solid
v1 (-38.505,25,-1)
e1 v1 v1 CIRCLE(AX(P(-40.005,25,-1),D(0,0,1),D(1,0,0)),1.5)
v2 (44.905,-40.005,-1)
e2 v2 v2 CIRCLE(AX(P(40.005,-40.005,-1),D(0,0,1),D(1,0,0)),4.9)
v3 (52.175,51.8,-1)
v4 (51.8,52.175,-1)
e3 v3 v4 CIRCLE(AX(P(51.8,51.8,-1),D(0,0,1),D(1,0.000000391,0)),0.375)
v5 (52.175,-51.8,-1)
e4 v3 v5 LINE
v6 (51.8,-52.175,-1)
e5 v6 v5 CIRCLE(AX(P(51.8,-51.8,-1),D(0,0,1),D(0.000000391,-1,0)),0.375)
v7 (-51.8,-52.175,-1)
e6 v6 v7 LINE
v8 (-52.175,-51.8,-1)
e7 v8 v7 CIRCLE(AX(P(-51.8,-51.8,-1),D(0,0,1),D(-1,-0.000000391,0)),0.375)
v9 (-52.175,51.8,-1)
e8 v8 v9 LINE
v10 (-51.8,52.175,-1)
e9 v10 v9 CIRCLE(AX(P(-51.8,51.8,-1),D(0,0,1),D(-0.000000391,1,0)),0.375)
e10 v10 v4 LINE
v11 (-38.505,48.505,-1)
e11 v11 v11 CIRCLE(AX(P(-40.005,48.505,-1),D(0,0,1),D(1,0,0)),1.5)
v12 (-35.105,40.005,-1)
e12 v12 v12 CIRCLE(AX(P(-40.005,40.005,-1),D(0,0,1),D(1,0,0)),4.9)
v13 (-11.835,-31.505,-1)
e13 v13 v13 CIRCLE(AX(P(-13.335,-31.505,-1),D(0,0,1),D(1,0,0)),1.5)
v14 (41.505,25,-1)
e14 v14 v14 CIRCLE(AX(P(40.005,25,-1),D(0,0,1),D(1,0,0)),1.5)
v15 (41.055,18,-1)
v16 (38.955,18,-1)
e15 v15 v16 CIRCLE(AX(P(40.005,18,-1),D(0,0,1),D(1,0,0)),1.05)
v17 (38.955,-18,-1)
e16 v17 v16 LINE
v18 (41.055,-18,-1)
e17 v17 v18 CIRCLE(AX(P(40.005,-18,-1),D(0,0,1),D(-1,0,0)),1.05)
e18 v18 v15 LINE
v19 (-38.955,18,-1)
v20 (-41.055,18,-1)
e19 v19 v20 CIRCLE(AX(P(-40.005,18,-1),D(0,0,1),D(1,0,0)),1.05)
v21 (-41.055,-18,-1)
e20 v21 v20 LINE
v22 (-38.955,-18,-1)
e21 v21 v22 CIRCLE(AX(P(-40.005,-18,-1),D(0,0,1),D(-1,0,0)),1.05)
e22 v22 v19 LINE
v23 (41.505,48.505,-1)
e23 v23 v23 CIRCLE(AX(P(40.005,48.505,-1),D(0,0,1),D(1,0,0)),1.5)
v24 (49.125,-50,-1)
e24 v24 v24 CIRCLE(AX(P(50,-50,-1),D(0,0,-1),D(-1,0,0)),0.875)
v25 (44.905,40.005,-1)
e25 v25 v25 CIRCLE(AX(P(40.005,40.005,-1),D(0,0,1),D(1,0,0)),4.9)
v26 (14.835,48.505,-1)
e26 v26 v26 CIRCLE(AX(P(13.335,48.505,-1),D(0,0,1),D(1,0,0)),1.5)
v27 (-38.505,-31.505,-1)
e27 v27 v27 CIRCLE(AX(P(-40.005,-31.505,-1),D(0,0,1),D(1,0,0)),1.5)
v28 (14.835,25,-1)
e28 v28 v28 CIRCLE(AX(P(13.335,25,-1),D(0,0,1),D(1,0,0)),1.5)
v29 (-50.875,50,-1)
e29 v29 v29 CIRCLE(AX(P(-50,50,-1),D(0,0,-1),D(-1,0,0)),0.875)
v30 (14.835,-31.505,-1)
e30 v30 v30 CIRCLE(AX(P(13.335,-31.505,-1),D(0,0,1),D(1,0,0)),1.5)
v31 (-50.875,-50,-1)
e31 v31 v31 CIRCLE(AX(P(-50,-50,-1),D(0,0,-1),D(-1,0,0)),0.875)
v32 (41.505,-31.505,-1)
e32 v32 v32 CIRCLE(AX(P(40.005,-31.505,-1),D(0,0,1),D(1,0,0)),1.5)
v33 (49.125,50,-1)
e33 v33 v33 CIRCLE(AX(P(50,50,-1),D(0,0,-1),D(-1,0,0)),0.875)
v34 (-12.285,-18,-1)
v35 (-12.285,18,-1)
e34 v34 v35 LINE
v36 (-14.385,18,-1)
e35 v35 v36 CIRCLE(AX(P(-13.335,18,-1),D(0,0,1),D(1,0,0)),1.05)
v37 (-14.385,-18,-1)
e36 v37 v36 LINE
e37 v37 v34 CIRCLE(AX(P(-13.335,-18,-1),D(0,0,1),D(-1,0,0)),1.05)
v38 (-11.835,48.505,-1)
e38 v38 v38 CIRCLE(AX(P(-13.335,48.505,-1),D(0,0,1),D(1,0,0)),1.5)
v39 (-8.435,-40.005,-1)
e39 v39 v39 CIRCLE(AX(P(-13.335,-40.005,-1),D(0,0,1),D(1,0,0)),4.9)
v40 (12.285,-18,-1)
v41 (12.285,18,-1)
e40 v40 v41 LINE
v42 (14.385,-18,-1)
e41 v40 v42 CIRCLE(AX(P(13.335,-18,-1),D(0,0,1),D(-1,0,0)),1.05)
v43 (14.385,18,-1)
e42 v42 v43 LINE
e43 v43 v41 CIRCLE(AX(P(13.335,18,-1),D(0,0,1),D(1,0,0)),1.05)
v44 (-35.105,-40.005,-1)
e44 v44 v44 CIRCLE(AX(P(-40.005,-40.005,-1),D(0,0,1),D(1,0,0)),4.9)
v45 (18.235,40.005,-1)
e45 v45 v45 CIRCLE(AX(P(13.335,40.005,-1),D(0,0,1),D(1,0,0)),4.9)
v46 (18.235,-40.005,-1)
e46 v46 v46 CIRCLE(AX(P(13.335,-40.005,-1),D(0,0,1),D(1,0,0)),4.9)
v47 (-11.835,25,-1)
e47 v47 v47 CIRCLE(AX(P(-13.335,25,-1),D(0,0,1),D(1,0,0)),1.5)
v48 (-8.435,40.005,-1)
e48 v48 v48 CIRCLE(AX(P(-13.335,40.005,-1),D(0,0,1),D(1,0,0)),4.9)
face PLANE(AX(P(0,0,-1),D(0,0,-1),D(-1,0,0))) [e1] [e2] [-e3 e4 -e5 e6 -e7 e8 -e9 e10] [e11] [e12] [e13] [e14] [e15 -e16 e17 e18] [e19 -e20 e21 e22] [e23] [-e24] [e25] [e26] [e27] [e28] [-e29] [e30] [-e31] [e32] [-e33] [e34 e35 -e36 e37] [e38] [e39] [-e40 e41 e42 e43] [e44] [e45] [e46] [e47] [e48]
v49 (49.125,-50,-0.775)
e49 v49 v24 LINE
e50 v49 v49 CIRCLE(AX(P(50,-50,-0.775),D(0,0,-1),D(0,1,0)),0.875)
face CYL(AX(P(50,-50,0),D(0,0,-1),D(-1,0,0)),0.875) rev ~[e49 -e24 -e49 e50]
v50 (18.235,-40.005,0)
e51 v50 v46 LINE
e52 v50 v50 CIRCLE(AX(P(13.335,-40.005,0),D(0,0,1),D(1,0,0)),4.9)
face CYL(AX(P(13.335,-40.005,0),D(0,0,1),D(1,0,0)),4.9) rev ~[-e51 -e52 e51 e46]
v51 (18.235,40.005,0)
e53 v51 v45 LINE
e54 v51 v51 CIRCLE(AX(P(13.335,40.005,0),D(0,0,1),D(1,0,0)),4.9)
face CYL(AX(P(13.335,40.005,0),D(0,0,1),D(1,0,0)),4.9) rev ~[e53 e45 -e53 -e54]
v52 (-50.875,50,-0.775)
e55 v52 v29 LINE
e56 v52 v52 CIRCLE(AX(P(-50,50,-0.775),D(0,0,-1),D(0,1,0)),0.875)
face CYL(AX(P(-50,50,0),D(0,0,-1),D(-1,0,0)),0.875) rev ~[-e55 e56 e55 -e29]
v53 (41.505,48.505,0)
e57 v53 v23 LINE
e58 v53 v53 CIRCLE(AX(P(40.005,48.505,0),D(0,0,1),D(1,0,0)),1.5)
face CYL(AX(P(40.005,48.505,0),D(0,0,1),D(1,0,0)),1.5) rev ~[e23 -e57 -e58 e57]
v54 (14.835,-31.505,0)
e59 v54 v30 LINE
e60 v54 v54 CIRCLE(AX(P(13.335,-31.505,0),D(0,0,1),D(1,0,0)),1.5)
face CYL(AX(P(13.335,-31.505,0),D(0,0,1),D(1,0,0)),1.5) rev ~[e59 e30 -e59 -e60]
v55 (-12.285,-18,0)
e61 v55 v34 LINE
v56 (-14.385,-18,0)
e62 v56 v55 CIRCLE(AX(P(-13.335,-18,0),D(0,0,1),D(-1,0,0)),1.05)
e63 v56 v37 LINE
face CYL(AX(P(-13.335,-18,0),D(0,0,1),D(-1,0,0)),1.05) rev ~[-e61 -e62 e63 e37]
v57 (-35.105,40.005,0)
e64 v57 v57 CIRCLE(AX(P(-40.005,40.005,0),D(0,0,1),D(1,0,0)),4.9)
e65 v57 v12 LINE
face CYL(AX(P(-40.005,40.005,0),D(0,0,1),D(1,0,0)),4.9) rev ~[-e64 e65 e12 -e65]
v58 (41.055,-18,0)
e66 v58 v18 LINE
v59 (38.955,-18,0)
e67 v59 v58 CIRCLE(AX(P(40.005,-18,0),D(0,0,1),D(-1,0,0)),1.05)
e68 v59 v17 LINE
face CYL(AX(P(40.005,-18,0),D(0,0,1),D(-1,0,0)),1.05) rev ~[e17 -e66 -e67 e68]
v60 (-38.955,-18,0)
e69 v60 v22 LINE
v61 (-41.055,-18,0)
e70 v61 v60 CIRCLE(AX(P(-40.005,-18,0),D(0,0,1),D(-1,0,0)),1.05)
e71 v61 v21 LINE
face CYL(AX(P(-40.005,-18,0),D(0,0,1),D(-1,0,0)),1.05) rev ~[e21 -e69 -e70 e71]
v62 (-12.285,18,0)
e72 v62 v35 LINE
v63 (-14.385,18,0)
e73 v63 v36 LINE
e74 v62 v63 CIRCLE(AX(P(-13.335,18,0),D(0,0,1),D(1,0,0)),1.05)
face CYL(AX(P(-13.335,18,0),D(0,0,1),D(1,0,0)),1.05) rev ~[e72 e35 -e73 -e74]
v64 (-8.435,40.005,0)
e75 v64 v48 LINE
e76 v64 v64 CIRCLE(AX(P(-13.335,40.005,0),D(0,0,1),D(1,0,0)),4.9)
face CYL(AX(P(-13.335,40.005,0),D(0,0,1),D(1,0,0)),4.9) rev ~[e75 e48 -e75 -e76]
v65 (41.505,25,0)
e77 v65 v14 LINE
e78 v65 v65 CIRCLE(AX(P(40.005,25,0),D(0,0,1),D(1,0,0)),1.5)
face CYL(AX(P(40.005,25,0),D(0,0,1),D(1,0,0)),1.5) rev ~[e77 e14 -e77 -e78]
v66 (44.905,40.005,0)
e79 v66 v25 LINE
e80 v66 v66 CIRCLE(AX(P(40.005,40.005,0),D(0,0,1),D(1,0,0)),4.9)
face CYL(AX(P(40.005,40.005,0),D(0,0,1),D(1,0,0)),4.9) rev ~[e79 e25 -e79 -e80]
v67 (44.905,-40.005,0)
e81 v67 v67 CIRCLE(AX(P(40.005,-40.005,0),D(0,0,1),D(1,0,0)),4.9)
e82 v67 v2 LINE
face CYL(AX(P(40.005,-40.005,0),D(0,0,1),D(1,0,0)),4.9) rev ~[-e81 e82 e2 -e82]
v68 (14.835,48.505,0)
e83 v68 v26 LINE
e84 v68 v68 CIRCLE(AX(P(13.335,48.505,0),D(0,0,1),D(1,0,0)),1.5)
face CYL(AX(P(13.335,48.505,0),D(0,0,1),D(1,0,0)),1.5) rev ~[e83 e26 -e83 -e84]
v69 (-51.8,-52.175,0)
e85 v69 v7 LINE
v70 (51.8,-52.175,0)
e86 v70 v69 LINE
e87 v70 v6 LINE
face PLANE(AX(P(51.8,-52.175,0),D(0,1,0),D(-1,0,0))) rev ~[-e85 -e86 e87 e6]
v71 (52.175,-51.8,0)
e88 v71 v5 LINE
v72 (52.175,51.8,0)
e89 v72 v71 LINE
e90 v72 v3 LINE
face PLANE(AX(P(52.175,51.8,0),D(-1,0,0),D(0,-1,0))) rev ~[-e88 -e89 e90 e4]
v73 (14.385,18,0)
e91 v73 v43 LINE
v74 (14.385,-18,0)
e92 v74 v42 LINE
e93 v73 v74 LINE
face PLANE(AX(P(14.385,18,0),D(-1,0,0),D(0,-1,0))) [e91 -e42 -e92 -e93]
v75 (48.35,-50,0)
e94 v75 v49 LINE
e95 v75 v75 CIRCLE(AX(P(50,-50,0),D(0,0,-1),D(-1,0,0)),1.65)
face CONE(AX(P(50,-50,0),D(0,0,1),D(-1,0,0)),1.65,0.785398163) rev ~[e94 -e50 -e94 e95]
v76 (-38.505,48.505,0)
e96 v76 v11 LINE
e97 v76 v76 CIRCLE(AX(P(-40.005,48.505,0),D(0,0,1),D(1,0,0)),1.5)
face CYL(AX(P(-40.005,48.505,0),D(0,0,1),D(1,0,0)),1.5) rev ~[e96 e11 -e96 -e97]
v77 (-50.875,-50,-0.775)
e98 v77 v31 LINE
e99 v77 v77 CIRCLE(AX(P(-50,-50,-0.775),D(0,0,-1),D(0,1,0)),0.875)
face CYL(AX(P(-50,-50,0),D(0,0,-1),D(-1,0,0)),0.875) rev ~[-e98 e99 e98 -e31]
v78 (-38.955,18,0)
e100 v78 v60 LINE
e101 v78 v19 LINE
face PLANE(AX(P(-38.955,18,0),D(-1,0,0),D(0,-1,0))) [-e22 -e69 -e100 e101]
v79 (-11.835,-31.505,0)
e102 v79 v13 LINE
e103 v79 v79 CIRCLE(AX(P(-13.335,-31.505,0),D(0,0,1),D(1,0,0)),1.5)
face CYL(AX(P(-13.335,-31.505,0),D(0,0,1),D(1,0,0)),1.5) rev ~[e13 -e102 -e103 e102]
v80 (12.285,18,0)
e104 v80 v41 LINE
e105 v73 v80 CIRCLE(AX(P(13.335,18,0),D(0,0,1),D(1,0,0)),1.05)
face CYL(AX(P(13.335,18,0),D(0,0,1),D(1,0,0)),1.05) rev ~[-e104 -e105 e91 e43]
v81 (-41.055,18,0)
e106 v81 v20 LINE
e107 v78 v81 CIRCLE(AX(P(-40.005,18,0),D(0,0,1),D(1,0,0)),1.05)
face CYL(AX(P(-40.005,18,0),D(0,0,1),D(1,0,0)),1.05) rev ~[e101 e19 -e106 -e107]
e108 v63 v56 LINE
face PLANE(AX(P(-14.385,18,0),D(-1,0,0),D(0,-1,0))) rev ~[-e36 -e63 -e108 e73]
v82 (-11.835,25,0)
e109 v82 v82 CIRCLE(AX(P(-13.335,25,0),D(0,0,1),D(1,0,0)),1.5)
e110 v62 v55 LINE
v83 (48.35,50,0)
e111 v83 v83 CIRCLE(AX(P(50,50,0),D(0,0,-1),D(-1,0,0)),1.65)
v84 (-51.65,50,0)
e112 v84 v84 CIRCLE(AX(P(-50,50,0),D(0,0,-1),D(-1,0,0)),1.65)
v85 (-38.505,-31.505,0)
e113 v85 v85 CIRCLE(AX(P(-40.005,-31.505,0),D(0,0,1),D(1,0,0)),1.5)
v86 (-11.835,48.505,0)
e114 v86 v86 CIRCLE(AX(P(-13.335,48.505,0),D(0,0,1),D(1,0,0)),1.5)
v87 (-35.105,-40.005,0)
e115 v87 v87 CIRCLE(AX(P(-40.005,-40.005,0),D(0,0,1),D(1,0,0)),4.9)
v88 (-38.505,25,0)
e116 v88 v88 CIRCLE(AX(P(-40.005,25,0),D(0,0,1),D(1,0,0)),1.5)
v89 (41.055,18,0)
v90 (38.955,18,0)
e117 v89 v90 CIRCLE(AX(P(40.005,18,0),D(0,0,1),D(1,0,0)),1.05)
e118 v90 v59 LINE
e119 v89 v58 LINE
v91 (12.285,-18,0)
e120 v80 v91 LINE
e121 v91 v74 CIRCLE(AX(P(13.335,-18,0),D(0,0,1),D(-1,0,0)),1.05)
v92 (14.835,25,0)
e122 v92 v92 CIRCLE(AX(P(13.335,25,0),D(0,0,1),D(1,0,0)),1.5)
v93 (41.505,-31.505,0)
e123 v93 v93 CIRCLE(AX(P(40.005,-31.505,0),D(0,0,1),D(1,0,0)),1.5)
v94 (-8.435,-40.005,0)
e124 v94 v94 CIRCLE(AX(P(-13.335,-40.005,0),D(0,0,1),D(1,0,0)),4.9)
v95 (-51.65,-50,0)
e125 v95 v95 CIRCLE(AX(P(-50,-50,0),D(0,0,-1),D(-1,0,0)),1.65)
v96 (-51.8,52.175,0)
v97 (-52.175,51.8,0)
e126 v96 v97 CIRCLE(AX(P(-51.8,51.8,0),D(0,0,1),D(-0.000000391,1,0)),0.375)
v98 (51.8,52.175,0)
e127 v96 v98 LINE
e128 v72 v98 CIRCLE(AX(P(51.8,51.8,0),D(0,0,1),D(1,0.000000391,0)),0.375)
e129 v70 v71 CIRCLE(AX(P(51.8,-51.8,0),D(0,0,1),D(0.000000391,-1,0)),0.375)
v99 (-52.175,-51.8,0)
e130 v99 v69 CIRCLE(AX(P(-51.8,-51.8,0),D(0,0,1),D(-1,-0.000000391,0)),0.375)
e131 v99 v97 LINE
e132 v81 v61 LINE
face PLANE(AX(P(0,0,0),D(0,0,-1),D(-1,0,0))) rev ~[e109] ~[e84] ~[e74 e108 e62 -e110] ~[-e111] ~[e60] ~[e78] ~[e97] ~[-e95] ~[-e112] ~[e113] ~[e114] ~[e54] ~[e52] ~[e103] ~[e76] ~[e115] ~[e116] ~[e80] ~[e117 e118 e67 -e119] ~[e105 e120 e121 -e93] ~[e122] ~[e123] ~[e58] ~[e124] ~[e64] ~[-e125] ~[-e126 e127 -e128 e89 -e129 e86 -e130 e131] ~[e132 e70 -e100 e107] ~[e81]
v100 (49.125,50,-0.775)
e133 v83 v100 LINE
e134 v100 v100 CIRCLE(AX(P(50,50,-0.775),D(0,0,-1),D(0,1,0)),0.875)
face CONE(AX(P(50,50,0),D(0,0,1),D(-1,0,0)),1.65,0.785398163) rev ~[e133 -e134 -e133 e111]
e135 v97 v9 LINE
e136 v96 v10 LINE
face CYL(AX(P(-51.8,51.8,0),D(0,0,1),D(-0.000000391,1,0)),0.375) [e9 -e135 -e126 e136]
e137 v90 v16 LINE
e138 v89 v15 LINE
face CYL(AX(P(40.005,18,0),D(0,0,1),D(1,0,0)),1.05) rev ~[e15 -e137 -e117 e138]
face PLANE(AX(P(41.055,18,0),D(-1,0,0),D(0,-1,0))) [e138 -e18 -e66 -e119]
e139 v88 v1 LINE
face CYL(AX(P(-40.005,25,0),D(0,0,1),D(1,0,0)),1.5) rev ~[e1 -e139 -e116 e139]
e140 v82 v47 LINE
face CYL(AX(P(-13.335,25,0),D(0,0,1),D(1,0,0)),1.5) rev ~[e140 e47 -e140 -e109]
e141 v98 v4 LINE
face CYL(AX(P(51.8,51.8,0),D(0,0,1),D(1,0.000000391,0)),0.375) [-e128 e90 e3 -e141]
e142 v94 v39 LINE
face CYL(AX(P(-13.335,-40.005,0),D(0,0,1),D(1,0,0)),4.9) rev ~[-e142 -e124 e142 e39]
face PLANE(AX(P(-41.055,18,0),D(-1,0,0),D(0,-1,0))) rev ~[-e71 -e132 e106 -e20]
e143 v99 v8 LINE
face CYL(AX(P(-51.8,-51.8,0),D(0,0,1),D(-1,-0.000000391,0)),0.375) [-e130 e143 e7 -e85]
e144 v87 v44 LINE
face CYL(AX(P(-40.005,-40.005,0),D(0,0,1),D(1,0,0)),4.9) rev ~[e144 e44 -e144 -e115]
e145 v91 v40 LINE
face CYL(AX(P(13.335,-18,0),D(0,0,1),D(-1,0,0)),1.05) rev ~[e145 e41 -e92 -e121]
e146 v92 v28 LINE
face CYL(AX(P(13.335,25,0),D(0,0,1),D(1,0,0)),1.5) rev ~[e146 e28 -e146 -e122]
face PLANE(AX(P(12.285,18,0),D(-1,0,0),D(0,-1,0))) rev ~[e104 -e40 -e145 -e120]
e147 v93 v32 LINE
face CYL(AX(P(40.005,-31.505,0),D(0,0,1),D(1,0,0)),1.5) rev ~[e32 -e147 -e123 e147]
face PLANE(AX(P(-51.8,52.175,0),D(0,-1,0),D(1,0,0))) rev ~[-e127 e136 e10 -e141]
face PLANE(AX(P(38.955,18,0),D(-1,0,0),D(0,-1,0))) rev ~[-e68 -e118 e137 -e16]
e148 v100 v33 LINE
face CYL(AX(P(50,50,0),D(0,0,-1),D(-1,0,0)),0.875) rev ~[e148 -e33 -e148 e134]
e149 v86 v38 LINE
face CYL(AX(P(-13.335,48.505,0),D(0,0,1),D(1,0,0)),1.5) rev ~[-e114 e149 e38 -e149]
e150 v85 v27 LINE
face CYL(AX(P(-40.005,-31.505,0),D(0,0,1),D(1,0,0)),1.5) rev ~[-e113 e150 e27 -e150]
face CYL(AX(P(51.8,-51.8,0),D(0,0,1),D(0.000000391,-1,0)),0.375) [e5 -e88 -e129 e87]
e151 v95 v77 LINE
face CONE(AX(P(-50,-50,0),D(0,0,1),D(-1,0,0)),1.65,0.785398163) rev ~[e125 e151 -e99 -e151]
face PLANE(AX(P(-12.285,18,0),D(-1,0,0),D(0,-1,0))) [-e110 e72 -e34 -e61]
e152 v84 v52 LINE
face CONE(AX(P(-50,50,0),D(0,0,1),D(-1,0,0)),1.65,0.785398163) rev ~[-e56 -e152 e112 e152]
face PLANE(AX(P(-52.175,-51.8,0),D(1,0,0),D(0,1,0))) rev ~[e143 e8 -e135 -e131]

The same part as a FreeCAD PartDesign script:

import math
import FreeCAD as App
import Part
import Sketcher

V = App.Vector
Q = App.Units.Quantity

doc = App.newDocument("Part")
params = doc.addObject("Spreadsheet::Sheet", "Params")
for row, (alias, value) in enumerate([
    ("sketch1_width", "103.6 mm"),
    ("pad1_length", "1 mm"),
    ("sketch2_radius", "0.500001 mm"),
    ("sketch2_width", "90 mm"),
    ("sketch3_diameter", "1.75 mm"),
    ("hole_diameter", "1.75 mm"),
    ("hole_csink_diameter", "3.3 mm"),
    ("sketch4_diameter", "9.8 mm"),
    ("sketch5_diameter", "3 mm"),
    ("sketch6_diameter", "9.8 mm"),
    ("sketch7_diameter", "3 mm"),
    ("sketch8_height", "36 mm"),
    ("sketch8_radius", "1.05 mm"),
    ("sketch9_diameter", "3 mm"),
], start=1):
    params.set(f"A{row}", alias)
    params.set(f"B{row}", "=" + value)
    params.setAlias(f"B{row}", alias)

body = doc.addObject("PartDesign::Body", "Body")

# Sketch on XY plane
sketch1 = body.newObject("Sketcher::SketchObject", "Sketch")
sketch1.AttachmentSupport = (doc.getObject("XY_Plane"), [""])
sketch1.MapMode = "FlatFace"
sketch1.addGeometry([
    Part.LineSegment(V(51.8, 52.17, 0), V(-51.8, 52.17, 0)),  # 0
    Part.ArcOfCircle(Part.Circle(V(-51.8, 51.8, 0), V(0, 0, 1), 0.38), math.radians(90), math.radians(180)),  # 1
    Part.LineSegment(V(-52.17, 51.8, 0), V(-52.17, -51.8, 0)),  # 2
    Part.ArcOfCircle(Part.Circle(V(-51.8, -51.8, 0), V(0, 0, 1), 0.38), math.radians(-180), math.radians(-90)),  # 3
    Part.LineSegment(V(-51.8, -52.17, 0), V(51.8, -52.17, 0)),  # 4
    Part.ArcOfCircle(Part.Circle(V(51.8, -51.8, 0), V(0, 0, 1), 0.38), math.radians(-90), math.radians(0)),  # 5
    Part.LineSegment(V(52.17, -51.8, 0), V(52.17, 51.8, 0)),  # 6
    Part.ArcOfCircle(Part.Circle(V(51.8, 51.8, 0), V(0, 0, 1), 0.38), math.radians(0), math.radians(90)),  # 7
], False)
sketch1.addConstraint([
    Sketcher.Constraint("Tangent", 0, 2, 1, 1),
    Sketcher.Constraint("Tangent", 1, 2, 2, 1),
    Sketcher.Constraint("Tangent", 2, 2, 3, 1),
    Sketcher.Constraint("Tangent", 3, 2, 4, 1),
    Sketcher.Constraint("Tangent", 4, 2, 5, 1),
    Sketcher.Constraint("Tangent", 5, 2, 6, 1),
    Sketcher.Constraint("Tangent", 6, 2, 7, 1),
    Sketcher.Constraint("Tangent", 7, 2, 0, 1),
    Sketcher.Constraint("Horizontal", 0),
    Sketcher.Constraint("Vertical", 2),
    Sketcher.Constraint("Horizontal", 4),
    Sketcher.Constraint("Vertical", 6),
    Sketcher.Constraint("Equal", 1, 3),
    Sketcher.Constraint("Equal", 3, 5),
    Sketcher.Constraint("Equal", 5, 7),
    Sketcher.Constraint("Symmetric", 1, 3, 5, 3, -1, 1),
    Sketcher.Constraint("Equal", 4, 2),
    Sketcher.Constraint("DistanceX", 0, 2, 0, 1, Q("103.6 mm")),
    Sketcher.Constraint("Radius", 1, Q("0.375 mm")),
])
sketch1.setExpression("Constraints[17]", "Params.sketch1_width")
pad1 = body.newObject("PartDesign::Pad", "Pad")
pad1.Profile = sketch1
pad1.setExpression("Length", "Params.pad1_length")
pad1.Reversed = True

# Sketch on XY plane
sketch2 = body.newObject("Sketcher::SketchObject", "Sketch001")
sketch2.AttachmentSupport = (doc.getObject("XY_Plane"), [""])
sketch2.MapMode = "FlatFace"
sketch2.AttachmentOffset = App.Placement(V(0, 0, -4.8), App.Rotation())
sketch2.addGeometry([
    Part.LineSegment(V(-45, 50.2, 0), V(45, 50.2, 0)),  # 0
    Part.ArcOfCircle(Part.Circle(V(45, 50.7, 0), V(0, 0, 1), 0.5), math.radians(-90), math.radians(0)),  # 1
    Part.ArcOfCircle(Part.Circle(V(45, 50.7, 0), V(0, 0, 1), 0.5), math.radians(0), math.radians(90)),  # 2
    Part.LineSegment(V(45, 51.2, 0), V(-45, 51.2, 0)),  # 3
    Part.ArcOfCircle(Part.Circle(V(-45, 50.7, 0), V(0, 0, 1), 0.5), math.radians(90), math.radians(180)),  # 4
    Part.ArcOfCircle(Part.Circle(V(-45, 50.7, 0), V(0, 0, 1), 0.5), math.radians(-180), math.radians(-90)),  # 5
    Part.LineSegment(V(-45, -51.2, 0), V(45, -51.2, 0)),  # 6
    Part.ArcOfCircle(Part.Circle(V(45, -50.7, 0), V(0, 0, 1), 0.5), math.radians(-90), math.radians(0)),  # 7
    Part.ArcOfCircle(Part.Circle(V(45, -50.7, 0), V(0, 0, 1), 0.5), math.radians(0), math.radians(90)),  # 8
    Part.LineSegment(V(45, -50.2, 0), V(-45, -50.2, 0)),  # 9
    Part.ArcOfCircle(Part.Circle(V(-45, -50.7, 0), V(0, 0, 1), 0.5), math.radians(90), math.radians(180)),  # 10
    Part.ArcOfCircle(Part.Circle(V(-45, -50.7, 0), V(0, 0, 1), 0.5), math.radians(-180), math.radians(-90)),  # 11
    Part.LineSegment(V(51.2, -45, 0), V(51.2, 45, 0)),  # 12
    Part.ArcOfCircle(Part.Circle(V(50.7, 45, 0), V(0, 0, 1), 0.5), math.radians(0), math.radians(90)),  # 13
    Part.ArcOfCircle(Part.Circle(V(50.7, 45, 0), V(0, 0, 1), 0.5), math.radians(90), math.radians(180)),  # 14
    Part.LineSegment(V(50.2, 45, 0), V(50.2, -45, 0)),  # 15
    Part.ArcOfCircle(Part.Circle(V(50.7, -45, 0), V(0, 0, 1), 0.5), math.radians(-180), math.radians(-90)),  # 16
    Part.ArcOfCircle(Part.Circle(V(50.7, -45, 0), V(0, 0, 1), 0.5), math.radians(-90), math.radians(0)),  # 17
    Part.LineSegment(V(-50.2, -45, 0), V(-50.2, 45, 0)),  # 18
    Part.ArcOfCircle(Part.Circle(V(-50.7, 45, 0), V(0, 0, 1), 0.5), math.radians(0), math.radians(90)),  # 19
    Part.ArcOfCircle(Part.Circle(V(-50.7, 45, 0), V(0, 0, 1), 0.5), math.radians(90), math.radians(180)),  # 20
    Part.LineSegment(V(-51.2, 45, 0), V(-51.2, -45, 0)),  # 21
    Part.ArcOfCircle(Part.Circle(V(-50.7, -45, 0), V(0, 0, 1), 0.5), math.radians(-180), math.radians(-90)),  # 22
    Part.ArcOfCircle(Part.Circle(V(-50.7, -45, 0), V(0, 0, 1), 0.5), math.radians(-90), math.radians(0)),  # 23
], False)
sketch2.addConstraint([
    Sketcher.Constraint("Coincident", 0, 2, 1, 1),
    Sketcher.Constraint("Coincident", 1, 2, 2, 1),
    Sketcher.Constraint("Coincident", 2, 2, 3, 1),
    Sketcher.Constraint("Coincident", 3, 2, 4, 1),
    Sketcher.Constraint("Coincident", 4, 2, 5, 1),
    Sketcher.Constraint("Coincident", 5, 2, 0, 1),
    Sketcher.Constraint("Coincident", 6, 2, 7, 1),
    Sketcher.Constraint("Coincident", 7, 2, 8, 1),
    Sketcher.Constraint("Coincident", 8, 2, 9, 1),
    Sketcher.Constraint("Coincident", 9, 2, 10, 1),
    Sketcher.Constraint("Coincident", 10, 2, 11, 1),
    Sketcher.Constraint("Coincident", 11, 2, 6, 1),
    Sketcher.Constraint("Coincident", 12, 2, 13, 1),
    Sketcher.Constraint("Coincident", 13, 2, 14, 1),
    Sketcher.Constraint("Coincident", 14, 2, 15, 1),
    Sketcher.Constraint("Coincident", 15, 2, 16, 1),
    Sketcher.Constraint("Coincident", 16, 2, 17, 1),
    Sketcher.Constraint("Coincident", 17, 2, 12, 1),
    Sketcher.Constraint("Coincident", 18, 2, 19, 1),
    Sketcher.Constraint("Coincident", 19, 2, 20, 1),
    Sketcher.Constraint("Coincident", 20, 2, 21, 1),
    Sketcher.Constraint("Coincident", 21, 2, 22, 1),
    Sketcher.Constraint("Coincident", 22, 2, 23, 1),
    Sketcher.Constraint("Coincident", 23, 2, 18, 1),
    Sketcher.Constraint("Horizontal", 0),
    Sketcher.Constraint("Horizontal", 3),
    Sketcher.Constraint("Horizontal", 6),
    Sketcher.Constraint("Horizontal", 9),
    Sketcher.Constraint("Vertical", 12),
    Sketcher.Constraint("Vertical", 15),
    Sketcher.Constraint("Vertical", 18),
    Sketcher.Constraint("Vertical", 21),
    Sketcher.Constraint("Coincident", 2, 3, 1, 3),
    Sketcher.Constraint("Coincident", 5, 3, 4, 3),
    Sketcher.Constraint("Coincident", 8, 3, 7, 3),
    Sketcher.Constraint("Coincident", 11, 3, 10, 3),
    Sketcher.Constraint("Coincident", 14, 3, 13, 3),
    Sketcher.Constraint("Coincident", 17, 3, 16, 3),
    Sketcher.Constraint("Coincident", 20, 3, 19, 3),
    Sketcher.Constraint("Coincident", 23, 3, 22, 3),
    Sketcher.Constraint("Equal", 5, 7),
    Sketcher.Constraint("Equal", 11, 13),
    Sketcher.Constraint("Equal", 17, 19),
    Sketcher.Constraint("Symmetric", 4, 3, 7, 3, -1, 1),
    Sketcher.Constraint("Symmetric", 16, 3, 19, 3, -1, 1),
    Sketcher.Constraint("Symmetric", 1, 2, 10, 2, -1, 1),
    Sketcher.Constraint("Symmetric", 13, 2, 22, 2, -1, 1),
    Sketcher.Constraint("Symmetric", 1, 2, 4, 2, -2),
    Sketcher.Constraint("Symmetric", 13, 2, 19, 2, -2),
    Sketcher.Constraint("Horizontal", 5, 3, 1, 2),
    Sketcher.Constraint("Horizontal", 11, 3, 7, 2),
    Sketcher.Constraint("Horizontal", 20, 3, 12, 2),
    Sketcher.Constraint("Horizontal", 12, 2, 14, 2),
    Sketcher.Constraint("Horizontal", 23, 3, 15, 2),
    Sketcher.Constraint("Horizontal", 15, 2, 17, 2),
    Sketcher.Constraint("Horizontal", 14, 2, 18, 2),
    Sketcher.Constraint("Horizontal", 18, 2, 20, 2),
    Sketcher.Constraint("Horizontal", 17, 2, 21, 2),
    Sketcher.Constraint("Horizontal", 21, 2, 23, 2),
    Sketcher.Constraint("Vertical", 8, 3, 0, 2),
    Sketcher.Constraint("Vertical", 0, 2, 2, 2),
    Sketcher.Constraint("Vertical", 11, 3, 3, 2),
    Sketcher.Constraint("Vertical", 3, 2, 5, 2),
    Sketcher.Constraint("Vertical", 2, 2, 6, 2),
    Sketcher.Constraint("Vertical", 6, 2, 8, 2),
    Sketcher.Constraint("Vertical", 5, 2, 9, 2),
    Sketcher.Constraint("Vertical", 9, 2, 11, 2),
    Sketcher.Constraint("Vertical", 17, 3, 13, 2),
    Sketcher.Constraint("Vertical", 13, 2, 16, 2),
    Sketcher.Constraint("Equal", 9, 12),
    Sketcher.Constraint("Radius", 1, Q("0.500001 mm")),
    Sketcher.Constraint("DistanceX", 0, 1, 0, 2, Q("90 mm")),
    Sketcher.Constraint("DistanceY", 7, 3, 1, 3, Q("101.35 mm")),
    Sketcher.Constraint("DistanceX", -1, 1, 13, 3, Q("50.674999 mm")),
])
sketch2.setExpression("Constraints[70]", "Params.sketch2_radius")
sketch2.setExpression("Constraints[71]", "Params.sketch2_width")
pocket1 = body.newObject("PartDesign::Pocket", "Pocket")
pocket1.Profile = sketch2
pocket1.Type = "ThroughAll"

# Sketch on XY plane
sketch3 = body.newObject("Sketcher::SketchObject", "Sketch002")
sketch3.AttachmentSupport = (doc.getObject("XY_Plane"), [""])
sketch3.MapMode = "FlatFace"
sketch3.addGeometry([
    Part.Circle(V(-50, 50, 0), V(0, 0, 1), 0.9),
    Part.Circle(V(50, 50, 0), V(0, 0, 1), 0.9),
    Part.Circle(V(50, -50, 0), V(0, 0, 1), 0.9),
    Part.Circle(V(-50, -50, 0), V(0, 0, 1), 0.9),
], False)
sketch3.addConstraint([
    Sketcher.Constraint("Equal", 0, 1),
    Sketcher.Constraint("Equal", 1, 2),
    Sketcher.Constraint("Equal", 2, 3),
    Sketcher.Constraint("Symmetric", 0, 3, 2, 3, -1, 1),
    Sketcher.Constraint("Symmetric", 1, 3, 3, 3, -1, 1),
    Sketcher.Constraint("Symmetric", 0, 3, 1, 3, -2),
    Sketcher.Constraint("Diameter", 0, Q("1.75 mm")),
    Sketcher.Constraint("DistanceX", 0, 3, -1, 1, Q("50 mm")),
    Sketcher.Constraint("DistanceY", -1, 1, 0, 3, Q("50 mm")),
])
sketch3.setExpression("Constraints[6]", "Params.sketch3_diameter")
doc.recompute()
hole = body.newObject("PartDesign::Hole", "Hole")
hole.Profile = sketch3
hole.ThreadType = "None"
hole.setExpression("Diameter", "Params.hole_diameter")
hole.DepthType = "ThroughAll"
hole.HoleCutType = "Countersink"
hole.setExpression("HoleCutDiameter", "Params.hole_csink_diameter")
hole.HoleCutCountersinkAngle = 90

# Sketch on XY plane
sketch4 = body.newObject("Sketcher::SketchObject", "Sketch003")
sketch4.AttachmentSupport = (doc.getObject("XY_Plane"), [""])
sketch4.MapMode = "FlatFace"
sketch4.addGeometry([
    Part.Circle(V(-40, -40, 0), V(0, 0, 1), 4.9),
    Part.Circle(V(-13.3, -40, 0), V(0, 0, 1), 4.9),
    Part.Circle(V(13.3, -40, 0), V(0, 0, 1), 4.9),
    Part.Circle(V(40, -40, 0), V(0, 0, 1), 4.9),
], False)
sketch4.addConstraint([
    Sketcher.Constraint("Equal", 0, 1),
    Sketcher.Constraint("Equal", 1, 2),
    Sketcher.Constraint("Equal", 2, 3),
    Sketcher.Constraint("Symmetric", 1, 3, 2, 3, -2),
    Sketcher.Constraint("Symmetric", 0, 3, 3, 3, -2),
    Sketcher.Constraint("Horizontal", 0, 3, 1, 3),
    Sketcher.Constraint("Diameter", 0, Q("9.8 mm")),
    Sketcher.Constraint("DistanceX", 0, 3, 1, 3, Q("26.67 mm")),
    Sketcher.Constraint("DistanceX", 1, 3, 2, 3, Q("26.67 mm")),
    Sketcher.Constraint("DistanceY", 0, 3, -1, 1, Q("40.005 mm")),
])
sketch4.setExpression("Constraints[6]", "Params.sketch4_diameter")
pocket2 = body.newObject("PartDesign::Pocket", "Pocket001")
pocket2.Profile = sketch4
pocket2.Type = "ThroughAll"

# Sketch on XY plane
sketch5 = body.newObject("Sketcher::SketchObject", "Sketch004")
sketch5.AttachmentSupport = (doc.getObject("XY_Plane"), [""])
sketch5.MapMode = "FlatFace"
sketch5.addGeometry([
    Part.Circle(V(-40, -31.5, 0), V(0, 0, 1), 1.5),
    Part.Circle(V(-13.3, -31.5, 0), V(0, 0, 1), 1.5),
    Part.Circle(V(13.3, -31.5, 0), V(0, 0, 1), 1.5),
    Part.Circle(V(40, -31.5, 0), V(0, 0, 1), 1.5),
], False)
sketch5.addConstraint([
    Sketcher.Constraint("Equal", 0, 1),
    Sketcher.Constraint("Equal", 1, 2),
    Sketcher.Constraint("Equal", 2, 3),
    Sketcher.Constraint("Symmetric", 1, 3, 2, 3, -2),
    Sketcher.Constraint("Symmetric", 0, 3, 3, 3, -2),
    Sketcher.Constraint("Horizontal", 0, 3, 1, 3),
    Sketcher.Constraint("Diameter", 0, Q("3 mm")),
    Sketcher.Constraint("DistanceX", 0, 3, 1, 3, Q("26.67 mm")),
    Sketcher.Constraint("DistanceX", 1, 3, 2, 3, Q("26.67 mm")),
    Sketcher.Constraint("DistanceY", 0, 3, -1, 1, Q("31.505 mm")),
])
sketch5.setExpression("Constraints[6]", "Params.sketch5_diameter")
pocket3 = body.newObject("PartDesign::Pocket", "Pocket002")
pocket3.Profile = sketch5
pocket3.Type = "ThroughAll"

# Sketch on XY plane
sketch6 = body.newObject("Sketcher::SketchObject", "Sketch005")
sketch6.AttachmentSupport = (doc.getObject("XY_Plane"), [""])
sketch6.MapMode = "FlatFace"
sketch6.addGeometry([
    Part.Circle(V(-40, 40, 0), V(0, 0, 1), 4.9),
    Part.Circle(V(-13.3, 40, 0), V(0, 0, 1), 4.9),
    Part.Circle(V(13.3, 40, 0), V(0, 0, 1), 4.9),
    Part.Circle(V(40, 40, 0), V(0, 0, 1), 4.9),
], False)
sketch6.addConstraint([
    Sketcher.Constraint("Equal", 0, 1),
    Sketcher.Constraint("Equal", 1, 2),
    Sketcher.Constraint("Equal", 2, 3),
    Sketcher.Constraint("Symmetric", 1, 3, 2, 3, -2),
    Sketcher.Constraint("Symmetric", 0, 3, 3, 3, -2),
    Sketcher.Constraint("Horizontal", 0, 3, 1, 3),
    Sketcher.Constraint("Diameter", 0, Q("9.8 mm")),
    Sketcher.Constraint("DistanceX", 0, 3, 1, 3, Q("26.67 mm")),
    Sketcher.Constraint("DistanceX", 1, 3, 2, 3, Q("26.67 mm")),
    Sketcher.Constraint("DistanceY", -1, 1, 0, 3, Q("40.005 mm")),
])
sketch6.setExpression("Constraints[6]", "Params.sketch6_diameter")
pocket4 = body.newObject("PartDesign::Pocket", "Pocket003")
pocket4.Profile = sketch6
pocket4.Type = "ThroughAll"

# Sketch on XY plane
sketch7 = body.newObject("Sketcher::SketchObject", "Sketch006")
sketch7.AttachmentSupport = (doc.getObject("XY_Plane"), [""])
sketch7.MapMode = "FlatFace"
sketch7.addGeometry([
    Part.Circle(V(-40, 48.5, 0), V(0, 0, 1), 1.5),
    Part.Circle(V(-13.3, 48.5, 0), V(0, 0, 1), 1.5),
    Part.Circle(V(13.3, 48.5, 0), V(0, 0, 1), 1.5),
    Part.Circle(V(40, 48.5, 0), V(0, 0, 1), 1.5),
], False)
sketch7.addConstraint([
    Sketcher.Constraint("Equal", 0, 1),
    Sketcher.Constraint("Equal", 1, 2),
    Sketcher.Constraint("Equal", 2, 3),
    Sketcher.Constraint("Symmetric", 1, 3, 2, 3, -2),
    Sketcher.Constraint("Symmetric", 0, 3, 3, 3, -2),
    Sketcher.Constraint("Horizontal", 0, 3, 1, 3),
    Sketcher.Constraint("Diameter", 0, Q("3 mm")),
    Sketcher.Constraint("DistanceX", 0, 3, 1, 3, Q("26.67 mm")),
    Sketcher.Constraint("DistanceX", 1, 3, 2, 3, Q("26.67 mm")),
    Sketcher.Constraint("DistanceY", -1, 1, 0, 3, Q("48.505 mm")),
])
sketch7.setExpression("Constraints[6]", "Params.sketch7_diameter")
pocket5 = body.newObject("PartDesign::Pocket", "Pocket004")
pocket5.Profile = sketch7
pocket5.Type = "ThroughAll"

# Sketch on XY plane
sketch8 = body.newObject("Sketcher::SketchObject", "Sketch007")
sketch8.AttachmentSupport = (doc.getObject("XY_Plane"), [""])
sketch8.MapMode = "FlatFace"
sketch8.addGeometry([
    Part.ArcOfCircle(Part.Circle(V(-40, 18, 0), V(0, 0, 1), 1.1), math.radians(0), math.radians(180)),  # 0
    Part.LineSegment(V(-41.1, 18, 0), V(-41.1, -18, 0)),  # 1
    Part.ArcOfCircle(Part.Circle(V(-40, -18, 0), V(0, 0, 1), 1.1), math.radians(180), math.radians(360)),  # 2
    Part.LineSegment(V(-39, -18, 0), V(-39, 18, 0)),  # 3
    Part.ArcOfCircle(Part.Circle(V(-13.3, 18, 0), V(0, 0, 1), 1.1), math.radians(0), math.radians(180)),  # 4
    Part.LineSegment(V(-14.4, 18, 0), V(-14.4, -18, 0)),  # 5
    Part.ArcOfCircle(Part.Circle(V(-13.3, -18, 0), V(0, 0, 1), 1.1), math.radians(180), math.radians(360)),  # 6
    Part.LineSegment(V(-12.3, -18, 0), V(-12.3, 18, 0)),  # 7
    Part.ArcOfCircle(Part.Circle(V(13.3, 18, 0), V(0, 0, 1), 1.1), math.radians(0), math.radians(180)),  # 8
    Part.LineSegment(V(12.3, 18, 0), V(12.3, -18, 0)),  # 9
    Part.ArcOfCircle(Part.Circle(V(13.3, -18, 0), V(0, 0, 1), 1.1), math.radians(180), math.radians(360)),  # 10
    Part.LineSegment(V(14.4, -18, 0), V(14.4, 18, 0)),  # 11
    Part.ArcOfCircle(Part.Circle(V(40, 18, 0), V(0, 0, 1), 1.1), math.radians(0), math.radians(180)),  # 12
    Part.LineSegment(V(39, 18, 0), V(39, -18, 0)),  # 13
    Part.ArcOfCircle(Part.Circle(V(40, -18, 0), V(0, 0, 1), 1.1), math.radians(180), math.radians(360)),  # 14
    Part.LineSegment(V(41.1, -18, 0), V(41.1, 18, 0)),  # 15
], False)
sketch8.addConstraint([
    Sketcher.Constraint("Tangent", 0, 2, 1, 1),
    Sketcher.Constraint("Tangent", 1, 2, 2, 1),
    Sketcher.Constraint("Tangent", 2, 2, 3, 1),
    Sketcher.Constraint("Tangent", 3, 2, 0, 1),
    Sketcher.Constraint("Tangent", 4, 2, 5, 1),
    Sketcher.Constraint("Tangent", 5, 2, 6, 1),
    Sketcher.Constraint("Tangent", 6, 2, 7, 1),
    Sketcher.Constraint("Tangent", 7, 2, 4, 1),
    Sketcher.Constraint("Tangent", 8, 2, 9, 1),
    Sketcher.Constraint("Tangent", 9, 2, 10, 1),
    Sketcher.Constraint("Tangent", 10, 2, 11, 1),
    Sketcher.Constraint("Tangent", 11, 2, 8, 1),
    Sketcher.Constraint("Tangent", 12, 2, 13, 1),
    Sketcher.Constraint("Tangent", 13, 2, 14, 1),
    Sketcher.Constraint("Tangent", 14, 2, 15, 1),
    Sketcher.Constraint("Tangent", 15, 2, 12, 1),
    Sketcher.Constraint("Vertical", 1),
    Sketcher.Constraint("Vertical", 3),
    Sketcher.Constraint("Vertical", 5),
    Sketcher.Constraint("Vertical", 7),
    Sketcher.Constraint("Vertical", 9),
    Sketcher.Constraint("Vertical", 11),
    Sketcher.Constraint("Vertical", 13),
    Sketcher.Constraint("Vertical", 15),
    Sketcher.Constraint("Equal", 2, 4),
    Sketcher.Constraint("Equal", 6, 8),
    Sketcher.Constraint("Equal", 10, 12),
    Sketcher.Constraint("Symmetric", 6, 3, 8, 3, -1, 1),
    Sketcher.Constraint("Symmetric", 2, 3, 12, 3, -1, 1),
    Sketcher.Constraint("Horizontal", 0, 3, 4, 3),
    Sketcher.Constraint("Horizontal", 2, 3, 6, 3),
    Sketcher.Constraint("Horizontal", 4, 3, 8, 3),
    Sketcher.Constraint("Horizontal", 6, 3, 10, 3),
    Sketcher.Constraint("Horizontal", 10, 3, 14, 3),
    Sketcher.Constraint("DistanceY", 1, 2, 1, 1, Q("36 mm")),
    Sketcher.Constraint("Radius", 0, Q("1.05 mm")),
    Sketcher.Constraint("DistanceX", 0, 3, 4, 3, Q("26.67 mm")),
    Sketcher.Constraint("DistanceX", 4, 3, 8, 3, Q("26.67 mm")),
])
sketch8.setExpression("Constraints[34]", "Params.sketch8_height")
sketch8.setExpression("Constraints[35]", "Params.sketch8_radius")
pocket6 = body.newObject("PartDesign::Pocket", "Pocket005")
pocket6.Profile = sketch8
pocket6.Type = "ThroughAll"

# Sketch on XY plane
sketch9 = body.newObject("Sketcher::SketchObject", "Sketch008")
sketch9.AttachmentSupport = (doc.getObject("XY_Plane"), [""])
sketch9.MapMode = "FlatFace"
sketch9.addGeometry([
    Part.Circle(V(-40, 25, 0), V(0, 0, 1), 1.5),
    Part.Circle(V(-13.3, 25, 0), V(0, 0, 1), 1.5),
    Part.Circle(V(13.3, 25, 0), V(0, 0, 1), 1.5),
    Part.Circle(V(40, 25, 0), V(0, 0, 1), 1.5),
], False)
sketch9.addConstraint([
    Sketcher.Constraint("Equal", 0, 1),
    Sketcher.Constraint("Equal", 1, 2),
    Sketcher.Constraint("Equal", 2, 3),
    Sketcher.Constraint("Symmetric", 1, 3, 2, 3, -2),
    Sketcher.Constraint("Symmetric", 0, 3, 3, 3, -2),
    Sketcher.Constraint("Horizontal", 0, 3, 1, 3),
    Sketcher.Constraint("Diameter", 0, Q("3 mm")),
    Sketcher.Constraint("DistanceY", -1, 1, 0, 3, Q("25 mm")),
    Sketcher.Constraint("DistanceX", 0, 3, 1, 3, Q("26.67 mm")),
    Sketcher.Constraint("DistanceX", 1, 3, 2, 3, Q("26.67 mm")),
])
sketch9.setExpression("Constraints[6]", "Params.sketch9_diameter")
pocket7 = body.newObject("PartDesign::Pocket", "Pocket006")
pocket7.Profile = sketch9
pocket7.Type = "ThroughAll"

doc.recompute()
